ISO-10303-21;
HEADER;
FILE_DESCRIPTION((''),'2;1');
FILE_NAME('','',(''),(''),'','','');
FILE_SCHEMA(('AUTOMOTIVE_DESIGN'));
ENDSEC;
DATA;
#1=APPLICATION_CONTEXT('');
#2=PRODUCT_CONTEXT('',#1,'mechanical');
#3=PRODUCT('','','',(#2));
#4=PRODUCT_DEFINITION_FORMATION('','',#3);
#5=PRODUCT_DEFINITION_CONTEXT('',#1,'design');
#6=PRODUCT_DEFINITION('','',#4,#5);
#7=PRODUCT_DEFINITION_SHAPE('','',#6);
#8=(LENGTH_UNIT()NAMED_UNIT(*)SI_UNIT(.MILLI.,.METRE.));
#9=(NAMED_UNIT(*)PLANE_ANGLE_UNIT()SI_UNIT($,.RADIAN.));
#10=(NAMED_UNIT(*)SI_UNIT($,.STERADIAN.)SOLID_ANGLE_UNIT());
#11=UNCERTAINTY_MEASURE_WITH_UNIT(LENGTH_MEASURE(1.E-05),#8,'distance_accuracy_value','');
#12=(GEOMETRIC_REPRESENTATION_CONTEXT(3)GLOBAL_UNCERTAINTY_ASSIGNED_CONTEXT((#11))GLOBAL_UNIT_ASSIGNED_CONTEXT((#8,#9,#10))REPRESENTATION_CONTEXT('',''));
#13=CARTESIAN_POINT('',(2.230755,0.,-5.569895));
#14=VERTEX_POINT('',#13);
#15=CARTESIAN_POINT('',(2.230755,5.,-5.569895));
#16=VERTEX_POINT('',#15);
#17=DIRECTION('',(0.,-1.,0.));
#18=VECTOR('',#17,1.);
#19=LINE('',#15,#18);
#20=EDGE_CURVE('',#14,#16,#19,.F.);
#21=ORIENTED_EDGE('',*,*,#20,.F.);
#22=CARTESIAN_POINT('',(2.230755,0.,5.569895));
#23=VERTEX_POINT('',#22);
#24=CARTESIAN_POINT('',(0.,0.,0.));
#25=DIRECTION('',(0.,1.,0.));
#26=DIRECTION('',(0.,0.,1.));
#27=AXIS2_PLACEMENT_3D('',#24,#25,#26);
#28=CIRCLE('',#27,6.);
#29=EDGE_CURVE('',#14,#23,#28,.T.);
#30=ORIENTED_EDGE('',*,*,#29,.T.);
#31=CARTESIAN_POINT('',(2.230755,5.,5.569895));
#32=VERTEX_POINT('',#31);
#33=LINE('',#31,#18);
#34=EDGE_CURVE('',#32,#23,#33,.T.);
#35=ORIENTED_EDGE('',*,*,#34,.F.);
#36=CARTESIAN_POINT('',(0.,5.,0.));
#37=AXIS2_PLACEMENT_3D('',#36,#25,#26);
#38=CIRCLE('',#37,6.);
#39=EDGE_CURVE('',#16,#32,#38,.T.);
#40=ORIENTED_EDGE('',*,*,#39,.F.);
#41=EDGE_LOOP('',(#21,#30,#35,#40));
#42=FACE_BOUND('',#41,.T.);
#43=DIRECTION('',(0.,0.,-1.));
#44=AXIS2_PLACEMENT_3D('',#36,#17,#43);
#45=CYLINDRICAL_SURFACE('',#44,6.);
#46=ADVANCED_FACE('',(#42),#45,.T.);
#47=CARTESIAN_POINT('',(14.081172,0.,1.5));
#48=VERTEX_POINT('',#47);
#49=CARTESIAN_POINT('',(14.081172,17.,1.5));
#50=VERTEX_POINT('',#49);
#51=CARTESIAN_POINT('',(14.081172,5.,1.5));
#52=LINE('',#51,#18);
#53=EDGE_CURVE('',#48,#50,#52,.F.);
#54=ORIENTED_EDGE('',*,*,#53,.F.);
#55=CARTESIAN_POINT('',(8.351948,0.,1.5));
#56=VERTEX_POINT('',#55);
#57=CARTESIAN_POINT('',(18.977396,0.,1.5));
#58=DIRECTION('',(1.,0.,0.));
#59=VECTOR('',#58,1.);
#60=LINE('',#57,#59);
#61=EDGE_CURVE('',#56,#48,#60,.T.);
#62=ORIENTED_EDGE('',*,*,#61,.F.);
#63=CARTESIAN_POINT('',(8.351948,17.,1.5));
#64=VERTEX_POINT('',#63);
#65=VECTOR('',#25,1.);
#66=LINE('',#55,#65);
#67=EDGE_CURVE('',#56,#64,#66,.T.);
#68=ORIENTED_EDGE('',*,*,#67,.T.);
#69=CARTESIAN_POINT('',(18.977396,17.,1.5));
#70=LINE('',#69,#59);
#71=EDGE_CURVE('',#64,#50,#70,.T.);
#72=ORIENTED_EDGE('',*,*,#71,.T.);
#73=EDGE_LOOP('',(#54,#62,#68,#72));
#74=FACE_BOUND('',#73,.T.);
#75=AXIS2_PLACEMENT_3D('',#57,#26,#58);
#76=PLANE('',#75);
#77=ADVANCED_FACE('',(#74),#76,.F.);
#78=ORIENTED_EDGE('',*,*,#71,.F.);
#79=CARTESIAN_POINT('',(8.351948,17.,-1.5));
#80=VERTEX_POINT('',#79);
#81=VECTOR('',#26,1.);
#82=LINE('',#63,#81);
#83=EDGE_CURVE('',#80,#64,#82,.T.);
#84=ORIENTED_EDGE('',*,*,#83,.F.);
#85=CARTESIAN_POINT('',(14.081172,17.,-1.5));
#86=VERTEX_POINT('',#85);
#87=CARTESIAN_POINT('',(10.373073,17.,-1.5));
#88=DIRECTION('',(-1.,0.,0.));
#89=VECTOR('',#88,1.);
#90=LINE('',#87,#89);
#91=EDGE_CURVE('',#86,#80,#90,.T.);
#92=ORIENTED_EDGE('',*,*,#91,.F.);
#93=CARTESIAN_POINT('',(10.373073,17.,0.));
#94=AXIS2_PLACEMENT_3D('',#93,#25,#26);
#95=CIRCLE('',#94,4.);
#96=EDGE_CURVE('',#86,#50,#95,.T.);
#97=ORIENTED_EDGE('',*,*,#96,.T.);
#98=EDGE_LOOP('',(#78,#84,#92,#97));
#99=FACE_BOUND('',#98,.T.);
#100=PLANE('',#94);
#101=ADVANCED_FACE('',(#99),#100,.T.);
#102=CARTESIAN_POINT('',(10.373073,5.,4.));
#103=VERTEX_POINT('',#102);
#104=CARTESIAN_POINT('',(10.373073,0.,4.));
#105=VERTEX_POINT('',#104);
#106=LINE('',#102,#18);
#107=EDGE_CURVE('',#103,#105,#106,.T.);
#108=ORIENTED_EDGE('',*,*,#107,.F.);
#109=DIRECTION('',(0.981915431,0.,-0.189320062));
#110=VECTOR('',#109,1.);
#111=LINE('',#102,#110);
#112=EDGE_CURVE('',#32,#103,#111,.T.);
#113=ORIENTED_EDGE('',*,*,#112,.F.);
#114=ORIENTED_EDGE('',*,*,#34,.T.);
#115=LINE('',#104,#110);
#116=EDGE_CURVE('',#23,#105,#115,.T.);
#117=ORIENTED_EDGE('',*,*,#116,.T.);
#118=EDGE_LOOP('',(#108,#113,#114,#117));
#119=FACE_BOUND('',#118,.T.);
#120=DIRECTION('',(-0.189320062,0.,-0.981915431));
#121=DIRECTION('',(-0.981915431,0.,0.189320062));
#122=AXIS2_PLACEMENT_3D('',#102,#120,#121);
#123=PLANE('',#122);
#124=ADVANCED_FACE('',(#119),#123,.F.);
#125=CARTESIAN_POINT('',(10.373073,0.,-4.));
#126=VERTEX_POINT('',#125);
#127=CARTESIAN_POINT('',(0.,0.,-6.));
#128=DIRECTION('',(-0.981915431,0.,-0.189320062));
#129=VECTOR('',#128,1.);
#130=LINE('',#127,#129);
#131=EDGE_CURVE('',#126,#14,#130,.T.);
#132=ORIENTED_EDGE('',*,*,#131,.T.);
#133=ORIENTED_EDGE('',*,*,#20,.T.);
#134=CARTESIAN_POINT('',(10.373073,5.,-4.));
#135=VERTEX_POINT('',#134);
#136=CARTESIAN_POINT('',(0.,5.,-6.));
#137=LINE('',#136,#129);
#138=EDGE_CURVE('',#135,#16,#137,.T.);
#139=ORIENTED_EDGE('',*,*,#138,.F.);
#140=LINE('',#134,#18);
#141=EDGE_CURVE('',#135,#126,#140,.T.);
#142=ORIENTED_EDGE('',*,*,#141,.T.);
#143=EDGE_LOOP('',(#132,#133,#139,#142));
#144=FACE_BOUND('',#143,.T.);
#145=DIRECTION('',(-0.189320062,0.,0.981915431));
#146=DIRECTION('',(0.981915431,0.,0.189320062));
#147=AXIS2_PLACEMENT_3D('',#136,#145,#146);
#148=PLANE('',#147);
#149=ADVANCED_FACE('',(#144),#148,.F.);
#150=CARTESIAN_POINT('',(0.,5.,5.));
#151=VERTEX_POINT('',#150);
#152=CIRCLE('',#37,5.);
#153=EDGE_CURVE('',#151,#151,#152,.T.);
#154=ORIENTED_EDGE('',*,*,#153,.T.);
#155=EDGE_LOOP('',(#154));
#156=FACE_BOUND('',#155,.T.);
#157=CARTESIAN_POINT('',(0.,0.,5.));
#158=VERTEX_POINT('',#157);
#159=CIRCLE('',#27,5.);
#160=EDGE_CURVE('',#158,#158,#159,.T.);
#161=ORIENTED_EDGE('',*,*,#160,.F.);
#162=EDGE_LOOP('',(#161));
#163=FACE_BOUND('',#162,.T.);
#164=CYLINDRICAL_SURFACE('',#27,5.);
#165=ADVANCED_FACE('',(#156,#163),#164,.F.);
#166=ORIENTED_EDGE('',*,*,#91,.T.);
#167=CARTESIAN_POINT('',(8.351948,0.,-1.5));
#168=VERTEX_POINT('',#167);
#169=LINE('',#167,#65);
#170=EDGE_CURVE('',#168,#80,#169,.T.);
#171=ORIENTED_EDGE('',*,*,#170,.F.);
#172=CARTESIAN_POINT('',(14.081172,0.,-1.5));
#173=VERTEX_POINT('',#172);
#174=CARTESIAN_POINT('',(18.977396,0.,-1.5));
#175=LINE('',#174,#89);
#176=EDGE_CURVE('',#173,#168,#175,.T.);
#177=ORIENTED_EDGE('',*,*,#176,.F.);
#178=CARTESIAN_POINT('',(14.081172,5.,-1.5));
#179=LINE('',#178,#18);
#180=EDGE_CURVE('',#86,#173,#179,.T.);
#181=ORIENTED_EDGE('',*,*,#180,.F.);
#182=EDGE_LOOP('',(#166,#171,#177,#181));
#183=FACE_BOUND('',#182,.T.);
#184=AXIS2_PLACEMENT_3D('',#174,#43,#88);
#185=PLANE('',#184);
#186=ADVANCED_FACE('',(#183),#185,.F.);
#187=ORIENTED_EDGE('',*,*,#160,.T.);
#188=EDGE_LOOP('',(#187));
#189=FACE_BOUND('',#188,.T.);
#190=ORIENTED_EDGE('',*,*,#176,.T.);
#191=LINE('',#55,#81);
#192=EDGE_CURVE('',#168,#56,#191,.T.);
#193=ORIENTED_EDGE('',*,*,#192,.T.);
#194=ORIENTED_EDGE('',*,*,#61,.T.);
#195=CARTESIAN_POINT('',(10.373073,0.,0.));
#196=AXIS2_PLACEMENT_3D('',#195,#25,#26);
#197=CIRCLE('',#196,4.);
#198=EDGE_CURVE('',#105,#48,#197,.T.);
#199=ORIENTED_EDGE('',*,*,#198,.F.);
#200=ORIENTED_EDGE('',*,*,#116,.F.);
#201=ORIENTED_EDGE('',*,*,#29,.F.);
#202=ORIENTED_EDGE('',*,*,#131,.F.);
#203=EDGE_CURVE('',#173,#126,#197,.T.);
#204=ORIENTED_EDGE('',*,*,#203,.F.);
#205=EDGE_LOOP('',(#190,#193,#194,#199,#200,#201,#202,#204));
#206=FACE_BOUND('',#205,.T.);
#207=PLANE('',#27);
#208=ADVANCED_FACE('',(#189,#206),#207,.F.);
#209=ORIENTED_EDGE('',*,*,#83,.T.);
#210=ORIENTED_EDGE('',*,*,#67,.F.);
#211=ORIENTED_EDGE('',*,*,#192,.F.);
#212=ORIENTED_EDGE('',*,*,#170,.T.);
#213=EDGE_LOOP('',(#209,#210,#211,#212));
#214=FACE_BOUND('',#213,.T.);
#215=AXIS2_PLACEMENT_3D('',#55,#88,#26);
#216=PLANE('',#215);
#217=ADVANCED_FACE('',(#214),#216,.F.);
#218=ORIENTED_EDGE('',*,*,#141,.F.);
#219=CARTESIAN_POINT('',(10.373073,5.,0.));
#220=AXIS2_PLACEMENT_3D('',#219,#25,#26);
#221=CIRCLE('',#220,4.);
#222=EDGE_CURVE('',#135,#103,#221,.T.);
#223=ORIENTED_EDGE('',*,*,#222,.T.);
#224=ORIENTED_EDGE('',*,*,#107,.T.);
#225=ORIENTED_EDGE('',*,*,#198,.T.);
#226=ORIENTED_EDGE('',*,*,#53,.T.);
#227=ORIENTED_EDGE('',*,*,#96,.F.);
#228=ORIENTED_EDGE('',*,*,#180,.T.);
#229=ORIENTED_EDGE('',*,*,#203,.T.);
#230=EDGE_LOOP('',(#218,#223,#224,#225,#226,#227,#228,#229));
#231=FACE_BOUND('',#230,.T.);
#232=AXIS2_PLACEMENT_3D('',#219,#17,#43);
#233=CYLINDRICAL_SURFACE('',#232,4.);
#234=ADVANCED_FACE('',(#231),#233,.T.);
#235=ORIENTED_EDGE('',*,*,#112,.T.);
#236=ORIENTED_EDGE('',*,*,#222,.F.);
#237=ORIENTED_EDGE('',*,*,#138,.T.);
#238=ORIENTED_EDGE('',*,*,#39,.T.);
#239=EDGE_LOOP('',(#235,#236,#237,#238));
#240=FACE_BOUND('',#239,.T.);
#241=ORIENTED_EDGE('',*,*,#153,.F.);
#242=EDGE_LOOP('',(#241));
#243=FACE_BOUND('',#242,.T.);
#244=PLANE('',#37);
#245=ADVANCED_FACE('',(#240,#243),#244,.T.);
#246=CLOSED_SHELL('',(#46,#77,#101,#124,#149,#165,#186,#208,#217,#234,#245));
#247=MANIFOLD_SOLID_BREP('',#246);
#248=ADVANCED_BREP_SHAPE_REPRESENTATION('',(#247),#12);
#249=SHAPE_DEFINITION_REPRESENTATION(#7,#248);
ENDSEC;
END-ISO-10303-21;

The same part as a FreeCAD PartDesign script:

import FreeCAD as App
import Part
import Sketcher
from FreeCAD import Vector


def add_polygon(sketch, points):
    """Adds a closed chain of lines whose ends are joined by coincident constraints."""
    first, n = sketch.GeometryCount, len(points)
    for a, b in zip(points, points[1:] + points[:1]):
        sketch.addGeometry(Part.LineSegment(App.Vector(*a, 0), App.Vector(*b, 0)), False)
    for i in range(n):
        sketch.addConstraint(Sketcher.Constraint("Coincident", first + i, 2, first + (i + 1) % n, 1))

doc = App.newDocument("Part")
body = doc.addObject("PartDesign::Body", "Body")

# Sketch on XZ plane
sketch1 = body.newObject("Sketcher::SketchObject", "Sketch")
sketch1.AttachmentSupport = (doc.getObject("XZ_Plane"), [""])
sketch1.MapMode = "FlatFace"
sketch1.addGeometry(Part.Circle(Vector(0, 0, 0), Vector(0, 0, 1), 6), False)
sketch1.addConstraint(Sketcher.Constraint("Coincident", 0, 3, -1, 1))
sketch1.addConstraint(Sketcher.Constraint("Diameter", 0, 12.0))
pad1 = body.newObject("PartDesign::Pad", "Pad")
pad1.Profile = sketch1
pad1.Length = 5
pad1.Reversed = True
body2 = doc.addObject("PartDesign::Body", "Body001")

# Sketch on XZ plane
sketch2 = body2.newObject("Sketcher::SketchObject", "Sketch001")
sketch2.AttachmentSupport = (doc.getObject("XZ_Plane001"), [""])
sketch2.MapMode = "FlatFace"
sketch2.addGeometry(Part.Circle(Vector(10.373073, 0, 0), Vector(0, 0, 1), 4), False)
sketch2.addConstraint(Sketcher.Constraint("PointOnObject", 0, 3, -1))
sketch2.addConstraint(Sketcher.Constraint("Diameter", 0, 8.0))
sketch2.addConstraint(Sketcher.Constraint("DistanceX", -1, 1, 0, 3, 10.373073))
pad2 = body2.newObject("PartDesign::Pad", "Pad001")
pad2.Profile = sketch2
pad2.Length = 5
pad2.Reversed = True
body.AllowCompound = True
doc.recompute()

boolean = body.newObject("PartDesign::Boolean", "Boolean")
boolean.Type = "Fuse"
boolean.addObjects([body2])

# Sketch on XZ plane
sketch3 = body.newObject("Sketcher::SketchObject", "Sketch002")
sketch3.AttachmentSupport = (doc.getObject("XZ_Plane"), [""])
sketch3.MapMode = "FlatFace"
add_polygon(sketch3, [(10.373073, -4), (0, -6), (0, 6), (10.373073, 4)])  # lines 0-3
sketch3.addConstraint(Sketcher.Constraint("Vertical", 1))
sketch3.addConstraint(Sketcher.Constraint("Vertical", 3))
sketch3.addConstraint(Sketcher.Constraint("Symmetric", 0, 2, 1, 2, -1, 1))
sketch3.addConstraint(Sketcher.Constraint("Equal", 0, 2))
sketch3.addConstraint(Sketcher.Constraint("DistanceY", 1, 1, 1, 2, 12.0))
sketch3.addConstraint(Sketcher.Constraint("DistanceY", 3, 2, 3, 1, 8.0))
sketch3.addConstraint(Sketcher.Constraint("Distance", 0, 10.564121))
pad3 = body.newObject("PartDesign::Pad", "Pad002")
pad3.Profile = sketch3
pad3.Length = 5
pad3.Reversed = True

# Sketch on XZ plane
sketch4 = body.newObject("Sketcher::SketchObject", "Sketch003")
sketch4.AttachmentSupport = (doc.getObject("XZ_Plane"), [""])
sketch4.MapMode = "FlatFace"
sketch4.AttachmentOffset = App.Placement(Vector(0, 0, -5), App.Rotation())
sketch4.addGeometry(Part.Circle(Vector(0, 0, 0), Vector(0, 0, 1), 5), False)
sketch4.addConstraint(Sketcher.Constraint("Coincident", 0, 3, -1, 1))
sketch4.addConstraint(Sketcher.Constraint("Diameter", 0, 10.0))
pocket1 = body.newObject("PartDesign::Pocket", "Pocket")
pocket1.Profile = sketch4
pocket1.Type = "ThroughAll"
pocket1.Reversed = True

# Sketch on XZ plane
sketch5 = body.newObject("Sketcher::SketchObject", "Sketch004")
sketch5.AttachmentSupport = (doc.getObject("XZ_Plane"), [""])
sketch5.MapMode = "FlatFace"
sketch5.AttachmentOffset = App.Placement(Vector(0, 0, -5), App.Rotation())
sketch5.addGeometry(Part.Circle(Vector(10.373073, 0, 0), Vector(0, 0, 1), 4), False)
sketch5.addConstraint(Sketcher.Constraint("PointOnObject", 0, 3, -1))
sketch5.addConstraint(Sketcher.Constraint("Diameter", 0, 8.0))
sketch5.addConstraint(Sketcher.Constraint("DistanceX", -1, 1, 0, 3, 10.373073))
pad4 = body.newObject("PartDesign::Pad", "Pad003")
pad4.Profile = sketch5
pad4.Length = 12
pad4.Reversed = True

# Sketch on XZ plane
sketch6 = body.newObject("Sketcher::SketchObject", "Sketch005")
sketch6.AttachmentSupport = (doc.getObject("XZ_Plane"), [""])
sketch6.MapMode = "FlatFace"
sketch6.AttachmentOffset = App.Placement(Vector(0, 0, -17), App.Rotation())
add_polygon(sketch6, [(8.351948, -1.5), (8.351948, 1.5), (18.977396, 1.5), (18.977396, -1.5)])  # lines 0-3
sketch6.addConstraint(Sketcher.Constraint("Vertical", 0))
sketch6.addConstraint(Sketcher.Constraint("Horizontal", 1))
sketch6.addConstraint(Sketcher.Constraint("Vertical", 2))
sketch6.addConstraint(Sketcher.Constraint("Horizontal", 3))
sketch6.addConstraint(Sketcher.Constraint("DistanceY", 0, 1, 0, 2, 3.0))
sketch6.addConstraint(Sketcher.Constraint("DistanceY", -1, 1, 0, 2, 1.5))
sketch6.addConstraint(Sketcher.Constraint("DistanceX", 1, 1, 1, 2, 10.625448))
sketch6.addConstraint(Sketcher.Constraint("DistanceX", -1, 1, 0, 2, 8.351948))
pocket2 = body.newObject("PartDesign::Pocket", "Pocket001")
pocket2.Profile = sketch6
pocket2.Type = "ThroughAll"
pocket2.Reversed = True

doc.recompute()
